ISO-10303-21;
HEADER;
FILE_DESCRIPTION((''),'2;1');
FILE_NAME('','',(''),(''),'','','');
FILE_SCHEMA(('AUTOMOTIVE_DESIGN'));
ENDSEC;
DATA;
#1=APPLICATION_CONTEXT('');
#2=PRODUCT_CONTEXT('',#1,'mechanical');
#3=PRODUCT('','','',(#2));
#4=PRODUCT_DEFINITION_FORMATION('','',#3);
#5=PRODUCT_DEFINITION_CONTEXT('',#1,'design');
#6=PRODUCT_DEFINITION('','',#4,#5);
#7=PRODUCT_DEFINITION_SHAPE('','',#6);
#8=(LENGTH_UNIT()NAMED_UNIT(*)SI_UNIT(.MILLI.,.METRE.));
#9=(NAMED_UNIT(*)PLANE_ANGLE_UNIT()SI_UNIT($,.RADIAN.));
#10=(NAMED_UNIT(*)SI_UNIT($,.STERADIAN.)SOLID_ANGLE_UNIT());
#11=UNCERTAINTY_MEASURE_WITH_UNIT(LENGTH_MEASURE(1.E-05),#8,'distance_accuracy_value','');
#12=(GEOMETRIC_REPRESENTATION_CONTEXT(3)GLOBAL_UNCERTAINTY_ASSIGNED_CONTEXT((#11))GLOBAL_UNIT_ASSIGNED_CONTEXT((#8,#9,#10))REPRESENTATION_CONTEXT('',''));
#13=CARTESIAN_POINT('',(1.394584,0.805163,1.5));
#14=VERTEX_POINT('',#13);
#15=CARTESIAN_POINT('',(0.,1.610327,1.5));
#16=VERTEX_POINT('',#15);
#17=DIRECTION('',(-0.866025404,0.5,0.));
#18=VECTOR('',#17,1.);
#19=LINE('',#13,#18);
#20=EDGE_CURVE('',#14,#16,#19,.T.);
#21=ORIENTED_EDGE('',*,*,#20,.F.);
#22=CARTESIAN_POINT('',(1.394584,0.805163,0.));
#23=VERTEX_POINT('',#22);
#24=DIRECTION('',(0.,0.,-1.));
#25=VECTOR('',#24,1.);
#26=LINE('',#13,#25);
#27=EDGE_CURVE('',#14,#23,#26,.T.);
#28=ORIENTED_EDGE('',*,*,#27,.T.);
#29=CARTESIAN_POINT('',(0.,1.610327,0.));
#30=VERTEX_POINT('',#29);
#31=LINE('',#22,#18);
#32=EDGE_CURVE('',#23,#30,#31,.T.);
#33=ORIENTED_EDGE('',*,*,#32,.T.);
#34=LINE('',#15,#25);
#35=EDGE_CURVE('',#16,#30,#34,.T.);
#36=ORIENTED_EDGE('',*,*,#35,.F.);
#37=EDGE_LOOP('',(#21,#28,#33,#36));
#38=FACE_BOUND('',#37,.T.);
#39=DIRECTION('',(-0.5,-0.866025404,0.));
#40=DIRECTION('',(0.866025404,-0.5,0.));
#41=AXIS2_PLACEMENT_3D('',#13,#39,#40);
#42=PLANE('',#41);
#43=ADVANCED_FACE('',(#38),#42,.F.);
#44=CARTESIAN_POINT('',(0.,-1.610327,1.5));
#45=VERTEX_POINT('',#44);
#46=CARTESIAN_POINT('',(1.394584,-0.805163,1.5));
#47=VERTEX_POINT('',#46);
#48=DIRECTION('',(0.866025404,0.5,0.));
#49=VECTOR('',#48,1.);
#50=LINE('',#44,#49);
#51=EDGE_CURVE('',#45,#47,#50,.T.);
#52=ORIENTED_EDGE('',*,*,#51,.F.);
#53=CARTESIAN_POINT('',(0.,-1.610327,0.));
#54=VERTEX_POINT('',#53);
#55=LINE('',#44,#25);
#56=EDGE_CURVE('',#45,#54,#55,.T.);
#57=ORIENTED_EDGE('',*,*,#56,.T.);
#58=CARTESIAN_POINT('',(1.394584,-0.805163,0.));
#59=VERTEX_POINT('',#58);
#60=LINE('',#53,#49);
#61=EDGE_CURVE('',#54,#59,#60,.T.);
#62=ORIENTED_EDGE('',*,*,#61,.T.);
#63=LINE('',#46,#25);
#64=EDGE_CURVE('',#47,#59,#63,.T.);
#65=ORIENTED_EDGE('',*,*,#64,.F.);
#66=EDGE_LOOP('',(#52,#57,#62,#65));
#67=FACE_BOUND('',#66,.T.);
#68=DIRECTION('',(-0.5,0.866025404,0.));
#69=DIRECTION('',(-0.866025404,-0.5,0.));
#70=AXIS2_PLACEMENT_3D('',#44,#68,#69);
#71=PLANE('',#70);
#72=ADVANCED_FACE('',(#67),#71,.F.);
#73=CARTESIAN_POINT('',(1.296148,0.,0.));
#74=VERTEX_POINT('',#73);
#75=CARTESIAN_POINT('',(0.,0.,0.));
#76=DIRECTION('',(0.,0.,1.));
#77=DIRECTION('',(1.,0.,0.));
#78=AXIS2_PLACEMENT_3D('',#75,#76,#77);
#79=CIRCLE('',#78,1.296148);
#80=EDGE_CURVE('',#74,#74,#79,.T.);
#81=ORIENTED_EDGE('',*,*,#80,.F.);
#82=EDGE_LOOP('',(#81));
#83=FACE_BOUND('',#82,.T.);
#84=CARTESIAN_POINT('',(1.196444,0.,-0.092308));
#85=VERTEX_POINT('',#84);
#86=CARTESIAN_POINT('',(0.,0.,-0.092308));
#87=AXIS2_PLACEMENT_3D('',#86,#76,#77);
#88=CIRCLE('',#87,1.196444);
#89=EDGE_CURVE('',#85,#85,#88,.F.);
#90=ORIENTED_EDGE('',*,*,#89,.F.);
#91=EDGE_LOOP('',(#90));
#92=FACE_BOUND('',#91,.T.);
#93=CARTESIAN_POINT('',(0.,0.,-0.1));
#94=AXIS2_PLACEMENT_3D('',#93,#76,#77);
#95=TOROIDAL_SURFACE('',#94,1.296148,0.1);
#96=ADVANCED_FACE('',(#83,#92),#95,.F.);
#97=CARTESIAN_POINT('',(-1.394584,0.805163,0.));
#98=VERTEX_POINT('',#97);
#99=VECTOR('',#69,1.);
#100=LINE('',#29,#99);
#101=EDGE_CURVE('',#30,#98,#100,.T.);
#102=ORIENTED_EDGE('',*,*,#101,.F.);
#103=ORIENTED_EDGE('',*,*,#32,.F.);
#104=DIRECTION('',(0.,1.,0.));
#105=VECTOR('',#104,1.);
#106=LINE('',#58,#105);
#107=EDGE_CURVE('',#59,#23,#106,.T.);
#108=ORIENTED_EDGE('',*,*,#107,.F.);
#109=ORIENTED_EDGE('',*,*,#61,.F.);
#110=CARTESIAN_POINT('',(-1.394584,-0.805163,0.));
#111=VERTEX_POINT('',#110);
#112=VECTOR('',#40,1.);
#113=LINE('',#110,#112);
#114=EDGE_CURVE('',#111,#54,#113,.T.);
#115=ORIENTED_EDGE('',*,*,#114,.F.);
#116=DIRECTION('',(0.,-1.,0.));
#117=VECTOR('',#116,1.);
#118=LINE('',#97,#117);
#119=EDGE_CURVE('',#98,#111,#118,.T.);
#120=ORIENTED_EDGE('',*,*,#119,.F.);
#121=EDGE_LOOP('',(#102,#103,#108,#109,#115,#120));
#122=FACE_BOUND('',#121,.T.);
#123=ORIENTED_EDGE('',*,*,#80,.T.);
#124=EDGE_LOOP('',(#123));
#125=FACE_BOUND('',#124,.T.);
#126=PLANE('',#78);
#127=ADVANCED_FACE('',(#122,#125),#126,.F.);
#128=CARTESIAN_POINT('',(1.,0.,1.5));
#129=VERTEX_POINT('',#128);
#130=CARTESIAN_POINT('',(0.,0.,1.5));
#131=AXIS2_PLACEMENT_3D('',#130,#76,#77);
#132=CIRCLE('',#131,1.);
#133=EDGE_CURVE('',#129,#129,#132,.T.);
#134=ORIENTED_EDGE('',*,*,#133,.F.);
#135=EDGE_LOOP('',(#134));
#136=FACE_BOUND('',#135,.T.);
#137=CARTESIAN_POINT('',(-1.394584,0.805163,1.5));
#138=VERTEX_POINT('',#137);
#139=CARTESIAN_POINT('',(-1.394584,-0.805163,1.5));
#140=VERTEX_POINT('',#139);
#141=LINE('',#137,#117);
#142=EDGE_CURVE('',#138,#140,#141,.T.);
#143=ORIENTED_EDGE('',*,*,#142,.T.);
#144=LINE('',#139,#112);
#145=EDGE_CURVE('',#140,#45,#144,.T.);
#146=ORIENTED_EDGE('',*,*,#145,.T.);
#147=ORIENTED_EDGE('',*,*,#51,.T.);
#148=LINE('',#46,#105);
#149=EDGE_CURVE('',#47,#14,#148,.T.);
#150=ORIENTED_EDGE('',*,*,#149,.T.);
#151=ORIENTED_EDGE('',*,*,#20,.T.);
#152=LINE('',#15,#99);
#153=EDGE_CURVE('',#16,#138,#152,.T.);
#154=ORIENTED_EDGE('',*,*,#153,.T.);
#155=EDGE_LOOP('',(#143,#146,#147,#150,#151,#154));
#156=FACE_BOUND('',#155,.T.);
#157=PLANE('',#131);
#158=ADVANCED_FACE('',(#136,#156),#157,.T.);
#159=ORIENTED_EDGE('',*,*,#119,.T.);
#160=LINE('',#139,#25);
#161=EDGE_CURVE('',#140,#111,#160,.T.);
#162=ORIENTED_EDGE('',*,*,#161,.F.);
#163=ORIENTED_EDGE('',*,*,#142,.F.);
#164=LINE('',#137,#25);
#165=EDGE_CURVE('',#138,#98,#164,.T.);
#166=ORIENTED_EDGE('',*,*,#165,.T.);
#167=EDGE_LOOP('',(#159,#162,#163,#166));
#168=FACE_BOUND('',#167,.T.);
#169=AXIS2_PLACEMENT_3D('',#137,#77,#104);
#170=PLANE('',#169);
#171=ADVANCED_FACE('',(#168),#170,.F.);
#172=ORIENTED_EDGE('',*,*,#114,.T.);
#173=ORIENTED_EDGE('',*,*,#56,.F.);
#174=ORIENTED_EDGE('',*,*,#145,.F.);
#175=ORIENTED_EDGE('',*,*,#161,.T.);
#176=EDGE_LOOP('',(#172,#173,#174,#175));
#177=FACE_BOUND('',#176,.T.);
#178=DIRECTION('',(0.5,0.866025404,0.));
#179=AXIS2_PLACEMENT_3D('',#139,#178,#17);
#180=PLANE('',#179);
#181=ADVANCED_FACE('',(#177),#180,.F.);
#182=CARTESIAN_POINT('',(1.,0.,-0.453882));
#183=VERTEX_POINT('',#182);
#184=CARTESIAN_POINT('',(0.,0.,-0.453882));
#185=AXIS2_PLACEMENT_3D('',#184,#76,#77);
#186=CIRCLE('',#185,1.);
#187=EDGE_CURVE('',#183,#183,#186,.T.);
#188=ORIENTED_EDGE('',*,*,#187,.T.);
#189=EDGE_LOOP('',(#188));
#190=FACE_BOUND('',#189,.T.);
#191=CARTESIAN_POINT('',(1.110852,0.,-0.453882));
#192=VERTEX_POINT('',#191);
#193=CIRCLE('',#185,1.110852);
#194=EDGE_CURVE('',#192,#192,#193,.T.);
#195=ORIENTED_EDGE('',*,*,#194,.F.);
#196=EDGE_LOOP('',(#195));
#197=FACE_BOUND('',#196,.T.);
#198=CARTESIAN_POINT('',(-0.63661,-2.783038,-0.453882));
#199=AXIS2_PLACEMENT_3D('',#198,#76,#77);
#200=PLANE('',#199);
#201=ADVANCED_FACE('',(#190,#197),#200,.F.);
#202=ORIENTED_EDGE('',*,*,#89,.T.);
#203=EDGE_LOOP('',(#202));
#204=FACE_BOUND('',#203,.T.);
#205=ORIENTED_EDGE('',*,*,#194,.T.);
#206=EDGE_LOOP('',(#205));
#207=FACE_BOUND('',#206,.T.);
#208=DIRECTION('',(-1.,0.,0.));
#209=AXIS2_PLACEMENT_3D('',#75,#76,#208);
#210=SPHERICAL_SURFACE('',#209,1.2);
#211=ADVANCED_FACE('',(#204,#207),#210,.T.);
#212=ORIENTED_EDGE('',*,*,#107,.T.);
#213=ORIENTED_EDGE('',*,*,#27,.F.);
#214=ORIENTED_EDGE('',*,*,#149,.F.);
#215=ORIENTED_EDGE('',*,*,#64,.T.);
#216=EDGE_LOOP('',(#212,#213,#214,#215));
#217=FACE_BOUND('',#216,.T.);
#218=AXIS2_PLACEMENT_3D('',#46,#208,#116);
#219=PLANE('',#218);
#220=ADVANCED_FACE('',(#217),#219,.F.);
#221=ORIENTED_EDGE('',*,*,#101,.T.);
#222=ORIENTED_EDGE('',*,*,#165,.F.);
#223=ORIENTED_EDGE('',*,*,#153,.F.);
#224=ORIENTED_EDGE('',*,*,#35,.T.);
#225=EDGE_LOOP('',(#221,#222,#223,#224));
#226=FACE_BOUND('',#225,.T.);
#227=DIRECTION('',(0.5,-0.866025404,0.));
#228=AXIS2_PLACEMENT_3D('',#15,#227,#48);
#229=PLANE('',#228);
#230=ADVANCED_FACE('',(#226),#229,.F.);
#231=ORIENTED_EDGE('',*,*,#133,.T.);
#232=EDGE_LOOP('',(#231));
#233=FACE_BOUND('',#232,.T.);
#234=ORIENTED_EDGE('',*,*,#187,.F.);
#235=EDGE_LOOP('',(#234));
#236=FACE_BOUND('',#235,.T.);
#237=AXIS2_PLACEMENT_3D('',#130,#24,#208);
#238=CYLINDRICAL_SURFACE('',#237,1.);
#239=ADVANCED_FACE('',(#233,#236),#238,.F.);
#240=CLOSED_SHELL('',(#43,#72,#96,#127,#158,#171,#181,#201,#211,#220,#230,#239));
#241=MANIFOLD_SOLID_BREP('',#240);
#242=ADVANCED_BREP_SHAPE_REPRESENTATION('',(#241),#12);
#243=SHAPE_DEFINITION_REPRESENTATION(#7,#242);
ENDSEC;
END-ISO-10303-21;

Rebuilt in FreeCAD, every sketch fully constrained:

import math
import FreeCAD as App
import Part
import Sketcher
from FreeCAD import Vector
Q = App.Units.Quantity


def edges_at(feature, points):
    """Names of the edges that pass closest to the given points."""
    edges = feature.Shape.Edges
    near = lambda p: min(range(len(edges)), key=lambda i: edges[i].distToShape(Part.Vertex(*p))[0])
    return sorted({f"Edge{near(p) + 1}" for p in points})


def add_polygon(sketch, points):
    """Adds a closed chain of lines whose ends are joined by coincident constraints."""
    first, n = sketch.GeometryCount, len(points)
    for a, b in zip(points, points[1:] + points[:1]):
        sketch.addGeometry(Part.LineSegment(App.Vector(*a, 0), App.Vector(*b, 0)), False)
    for i in range(n):
        sketch.addConstraint(Sketcher.Constraint("Coincident", first + i, 2, first + (i + 1) % n, 1))

doc = App.newDocument("Part")
body = doc.addObject("PartDesign::Body", "Body")

# Sketch on XY plane
sketch1 = body.newObject("Sketcher::SketchObject", "Sketch")
sketch1.AttachmentSupport = (doc.getObject("XY_Plane"), [""])
sketch1.MapMode = "FlatFace"
add_polygon(sketch1, [(0, 1.6), (-1.4, 0.8), (-1.4, -0.8), (0, -1.6), (1.4, -0.8), (1.4, 0.8)])  # lines 0-5
sketch1.addGeometry(Part.Circle(Vector(0, 0, 0), Vector(0, 0, 1), 1), False)  # 6
sketch1.addConstraint(Sketcher.Constraint("Vertical", 1))
sketch1.addConstraint(Sketcher.Constraint("Vertical", 4))
sketch1.addConstraint(Sketcher.Constraint("Coincident", 6, 3, -1, 1))
sketch1.addConstraint(Sketcher.Constraint("Symmetric", 0, 2, 3, 2, -1, 1))
sketch1.addConstraint(Sketcher.Constraint("Symmetric", 2, 2, 5, 2, -1, 1))
sketch1.addConstraint(Sketcher.Constraint("PointOnObject", 2, 2, -2))
sketch1.addConstraint(Sketcher.Constraint("Parallel", 2, 5))
sketch1.addConstraint(Sketcher.Constraint("Horizontal", 1, 2, 3, 2))
sketch1.addConstraint(Sketcher.Constraint("Diameter", 6, Q("2 mm")))
sketch1.addConstraint(Sketcher.Constraint("Angle", 0, Q("-150 deg")))
sketch1.addConstraint(Sketcher.Constraint("DistanceY", 1, 2, 1, 1, Q("1.610327 mm")))
sketch1.addConstraint(Sketcher.Constraint("DistanceY", 2, 2, 0, 2, Q("2.41549 mm")))
pad1 = body.newObject("PartDesign::Pad", "Pad")
pad1.Profile = sketch1
pad1.Length = 1.5

# Sketch on XZ plane
sketch2 = body.newObject("Sketcher::SketchObject", "Sketch001")
sketch2.AttachmentSupport = (doc.getObject("XZ_Plane"), [""])
sketch2.MapMode = "FlatFace"
sketch2.addGeometry(Part.LineSegment(Vector(-1.2, 0, 0), Vector(0, 0, 0)), False)
sketch2.addGeometry(Part.LineSegment(Vector(0, 0, 0), Vector(0, -1.2, 0)), False)
sketch2.addGeometry(Part.ArcOfCircle(Part.Circle(Vector(0, 0, 0), Vector(0, 0, 1), 1.2), math.radians(-180), math.radians(-90)), False)
sketch2.addConstraint(Sketcher.Constraint("Coincident", 0, 2, 1, 1))
sketch2.addConstraint(Sketcher.Constraint("Coincident", 1, 2, 2, 2))
sketch2.addConstraint(Sketcher.Constraint("Coincident", 2, 1, 0, 1))
sketch2.addConstraint(Sketcher.Constraint("Horizontal", 0))
sketch2.addConstraint(Sketcher.Constraint("Vertical", 1))
sketch2.addConstraint(Sketcher.Constraint("Coincident", 2, 3, -1, 1))
sketch2.addConstraint(Sketcher.Constraint("Coincident", 0, 2, -1, 1))
sketch2.addConstraint(Sketcher.Constraint("Radius", 2, Q("1.2 mm")))
revolution = body.newObject("PartDesign::Revolution", "Revolution")
revolution.Profile = sketch2
revolution.ReferenceAxis = (sketch2, ["V_Axis"])
revolution.Angle = 360

# Sketch on XY plane
sketch3 = body.newObject("Sketcher::SketchObject", "Sketch002")
sketch3.AttachmentSupport = (doc.getObject("XY_Plane"), [""])
sketch3.MapMode = "FlatFace"
sketch3.addGeometry(Part.Circle(Vector(0, 0, 0), Vector(0, 0, 1), 1), False)
sketch3.addConstraint(Sketcher.Constraint("Coincident", 0, 3, -1, 1))
sketch3.addConstraint(Sketcher.Constraint("Diameter", 0, Q("2 mm")))
pocket1 = body.newObject("PartDesign::Pocket", "Pocket")
pocket1.Profile = sketch3
pocket1.Length = 1.5

# Sketch on an angled plane
sketch4 = body.newObject("Sketcher::SketchObject", "Sketch003")
sketch4.Placement = App.Placement(Vector(-0.697292, 1.207745, 0), App.Rotation(Vector(0.866025404, 0.5, 0), Vector(0, 0, -1), Vector(-0.5, 0.866025404, 0), "ZXY"))
add_polygon(sketch4, [(-1.9, 1.1), (-1.9, 0.5), (2.4, 0.5), (2.4, 1.1)])  # lines 0-3
sketch4.addConstraint(Sketcher.Constraint("Vertical", 0))
sketch4.addConstraint(Sketcher.Constraint("Horizontal", 1))
sketch4.addConstraint(Sketcher.Constraint("Vertical", 2))
sketch4.addConstraint(Sketcher.Constraint("Horizontal", 3))
sketch4.addConstraint(Sketcher.Constraint("DistanceX", 1, 1, 1, 2, Q("4.342397 mm")))
sketch4.addConstraint(Sketcher.Constraint("DistanceY", 0, 2, 0, 1, Q("0.669338 mm")))
sketch4.addConstraint(Sketcher.Constraint("DistanceX", 0, 2, -1, 1, Q("1.942839 mm")))
sketch4.addConstraint(Sketcher.Constraint("DistanceY", -1, 1, 0, 2, Q("0.453882 mm")))
pocket2 = body.newObject("PartDesign::Pocket", "Pocket001")
pocket2.Profile = sketch4
pocket2.Type = "ThroughAll"
doc.recompute()

fillet = body.newObject("PartDesign::Fillet", "Fillet")
fillet.Base = (pocket2, edges_at(pocket2, [(1.2, 0, 0)]))
fillet.Radius = 0.1

doc.recompute()
